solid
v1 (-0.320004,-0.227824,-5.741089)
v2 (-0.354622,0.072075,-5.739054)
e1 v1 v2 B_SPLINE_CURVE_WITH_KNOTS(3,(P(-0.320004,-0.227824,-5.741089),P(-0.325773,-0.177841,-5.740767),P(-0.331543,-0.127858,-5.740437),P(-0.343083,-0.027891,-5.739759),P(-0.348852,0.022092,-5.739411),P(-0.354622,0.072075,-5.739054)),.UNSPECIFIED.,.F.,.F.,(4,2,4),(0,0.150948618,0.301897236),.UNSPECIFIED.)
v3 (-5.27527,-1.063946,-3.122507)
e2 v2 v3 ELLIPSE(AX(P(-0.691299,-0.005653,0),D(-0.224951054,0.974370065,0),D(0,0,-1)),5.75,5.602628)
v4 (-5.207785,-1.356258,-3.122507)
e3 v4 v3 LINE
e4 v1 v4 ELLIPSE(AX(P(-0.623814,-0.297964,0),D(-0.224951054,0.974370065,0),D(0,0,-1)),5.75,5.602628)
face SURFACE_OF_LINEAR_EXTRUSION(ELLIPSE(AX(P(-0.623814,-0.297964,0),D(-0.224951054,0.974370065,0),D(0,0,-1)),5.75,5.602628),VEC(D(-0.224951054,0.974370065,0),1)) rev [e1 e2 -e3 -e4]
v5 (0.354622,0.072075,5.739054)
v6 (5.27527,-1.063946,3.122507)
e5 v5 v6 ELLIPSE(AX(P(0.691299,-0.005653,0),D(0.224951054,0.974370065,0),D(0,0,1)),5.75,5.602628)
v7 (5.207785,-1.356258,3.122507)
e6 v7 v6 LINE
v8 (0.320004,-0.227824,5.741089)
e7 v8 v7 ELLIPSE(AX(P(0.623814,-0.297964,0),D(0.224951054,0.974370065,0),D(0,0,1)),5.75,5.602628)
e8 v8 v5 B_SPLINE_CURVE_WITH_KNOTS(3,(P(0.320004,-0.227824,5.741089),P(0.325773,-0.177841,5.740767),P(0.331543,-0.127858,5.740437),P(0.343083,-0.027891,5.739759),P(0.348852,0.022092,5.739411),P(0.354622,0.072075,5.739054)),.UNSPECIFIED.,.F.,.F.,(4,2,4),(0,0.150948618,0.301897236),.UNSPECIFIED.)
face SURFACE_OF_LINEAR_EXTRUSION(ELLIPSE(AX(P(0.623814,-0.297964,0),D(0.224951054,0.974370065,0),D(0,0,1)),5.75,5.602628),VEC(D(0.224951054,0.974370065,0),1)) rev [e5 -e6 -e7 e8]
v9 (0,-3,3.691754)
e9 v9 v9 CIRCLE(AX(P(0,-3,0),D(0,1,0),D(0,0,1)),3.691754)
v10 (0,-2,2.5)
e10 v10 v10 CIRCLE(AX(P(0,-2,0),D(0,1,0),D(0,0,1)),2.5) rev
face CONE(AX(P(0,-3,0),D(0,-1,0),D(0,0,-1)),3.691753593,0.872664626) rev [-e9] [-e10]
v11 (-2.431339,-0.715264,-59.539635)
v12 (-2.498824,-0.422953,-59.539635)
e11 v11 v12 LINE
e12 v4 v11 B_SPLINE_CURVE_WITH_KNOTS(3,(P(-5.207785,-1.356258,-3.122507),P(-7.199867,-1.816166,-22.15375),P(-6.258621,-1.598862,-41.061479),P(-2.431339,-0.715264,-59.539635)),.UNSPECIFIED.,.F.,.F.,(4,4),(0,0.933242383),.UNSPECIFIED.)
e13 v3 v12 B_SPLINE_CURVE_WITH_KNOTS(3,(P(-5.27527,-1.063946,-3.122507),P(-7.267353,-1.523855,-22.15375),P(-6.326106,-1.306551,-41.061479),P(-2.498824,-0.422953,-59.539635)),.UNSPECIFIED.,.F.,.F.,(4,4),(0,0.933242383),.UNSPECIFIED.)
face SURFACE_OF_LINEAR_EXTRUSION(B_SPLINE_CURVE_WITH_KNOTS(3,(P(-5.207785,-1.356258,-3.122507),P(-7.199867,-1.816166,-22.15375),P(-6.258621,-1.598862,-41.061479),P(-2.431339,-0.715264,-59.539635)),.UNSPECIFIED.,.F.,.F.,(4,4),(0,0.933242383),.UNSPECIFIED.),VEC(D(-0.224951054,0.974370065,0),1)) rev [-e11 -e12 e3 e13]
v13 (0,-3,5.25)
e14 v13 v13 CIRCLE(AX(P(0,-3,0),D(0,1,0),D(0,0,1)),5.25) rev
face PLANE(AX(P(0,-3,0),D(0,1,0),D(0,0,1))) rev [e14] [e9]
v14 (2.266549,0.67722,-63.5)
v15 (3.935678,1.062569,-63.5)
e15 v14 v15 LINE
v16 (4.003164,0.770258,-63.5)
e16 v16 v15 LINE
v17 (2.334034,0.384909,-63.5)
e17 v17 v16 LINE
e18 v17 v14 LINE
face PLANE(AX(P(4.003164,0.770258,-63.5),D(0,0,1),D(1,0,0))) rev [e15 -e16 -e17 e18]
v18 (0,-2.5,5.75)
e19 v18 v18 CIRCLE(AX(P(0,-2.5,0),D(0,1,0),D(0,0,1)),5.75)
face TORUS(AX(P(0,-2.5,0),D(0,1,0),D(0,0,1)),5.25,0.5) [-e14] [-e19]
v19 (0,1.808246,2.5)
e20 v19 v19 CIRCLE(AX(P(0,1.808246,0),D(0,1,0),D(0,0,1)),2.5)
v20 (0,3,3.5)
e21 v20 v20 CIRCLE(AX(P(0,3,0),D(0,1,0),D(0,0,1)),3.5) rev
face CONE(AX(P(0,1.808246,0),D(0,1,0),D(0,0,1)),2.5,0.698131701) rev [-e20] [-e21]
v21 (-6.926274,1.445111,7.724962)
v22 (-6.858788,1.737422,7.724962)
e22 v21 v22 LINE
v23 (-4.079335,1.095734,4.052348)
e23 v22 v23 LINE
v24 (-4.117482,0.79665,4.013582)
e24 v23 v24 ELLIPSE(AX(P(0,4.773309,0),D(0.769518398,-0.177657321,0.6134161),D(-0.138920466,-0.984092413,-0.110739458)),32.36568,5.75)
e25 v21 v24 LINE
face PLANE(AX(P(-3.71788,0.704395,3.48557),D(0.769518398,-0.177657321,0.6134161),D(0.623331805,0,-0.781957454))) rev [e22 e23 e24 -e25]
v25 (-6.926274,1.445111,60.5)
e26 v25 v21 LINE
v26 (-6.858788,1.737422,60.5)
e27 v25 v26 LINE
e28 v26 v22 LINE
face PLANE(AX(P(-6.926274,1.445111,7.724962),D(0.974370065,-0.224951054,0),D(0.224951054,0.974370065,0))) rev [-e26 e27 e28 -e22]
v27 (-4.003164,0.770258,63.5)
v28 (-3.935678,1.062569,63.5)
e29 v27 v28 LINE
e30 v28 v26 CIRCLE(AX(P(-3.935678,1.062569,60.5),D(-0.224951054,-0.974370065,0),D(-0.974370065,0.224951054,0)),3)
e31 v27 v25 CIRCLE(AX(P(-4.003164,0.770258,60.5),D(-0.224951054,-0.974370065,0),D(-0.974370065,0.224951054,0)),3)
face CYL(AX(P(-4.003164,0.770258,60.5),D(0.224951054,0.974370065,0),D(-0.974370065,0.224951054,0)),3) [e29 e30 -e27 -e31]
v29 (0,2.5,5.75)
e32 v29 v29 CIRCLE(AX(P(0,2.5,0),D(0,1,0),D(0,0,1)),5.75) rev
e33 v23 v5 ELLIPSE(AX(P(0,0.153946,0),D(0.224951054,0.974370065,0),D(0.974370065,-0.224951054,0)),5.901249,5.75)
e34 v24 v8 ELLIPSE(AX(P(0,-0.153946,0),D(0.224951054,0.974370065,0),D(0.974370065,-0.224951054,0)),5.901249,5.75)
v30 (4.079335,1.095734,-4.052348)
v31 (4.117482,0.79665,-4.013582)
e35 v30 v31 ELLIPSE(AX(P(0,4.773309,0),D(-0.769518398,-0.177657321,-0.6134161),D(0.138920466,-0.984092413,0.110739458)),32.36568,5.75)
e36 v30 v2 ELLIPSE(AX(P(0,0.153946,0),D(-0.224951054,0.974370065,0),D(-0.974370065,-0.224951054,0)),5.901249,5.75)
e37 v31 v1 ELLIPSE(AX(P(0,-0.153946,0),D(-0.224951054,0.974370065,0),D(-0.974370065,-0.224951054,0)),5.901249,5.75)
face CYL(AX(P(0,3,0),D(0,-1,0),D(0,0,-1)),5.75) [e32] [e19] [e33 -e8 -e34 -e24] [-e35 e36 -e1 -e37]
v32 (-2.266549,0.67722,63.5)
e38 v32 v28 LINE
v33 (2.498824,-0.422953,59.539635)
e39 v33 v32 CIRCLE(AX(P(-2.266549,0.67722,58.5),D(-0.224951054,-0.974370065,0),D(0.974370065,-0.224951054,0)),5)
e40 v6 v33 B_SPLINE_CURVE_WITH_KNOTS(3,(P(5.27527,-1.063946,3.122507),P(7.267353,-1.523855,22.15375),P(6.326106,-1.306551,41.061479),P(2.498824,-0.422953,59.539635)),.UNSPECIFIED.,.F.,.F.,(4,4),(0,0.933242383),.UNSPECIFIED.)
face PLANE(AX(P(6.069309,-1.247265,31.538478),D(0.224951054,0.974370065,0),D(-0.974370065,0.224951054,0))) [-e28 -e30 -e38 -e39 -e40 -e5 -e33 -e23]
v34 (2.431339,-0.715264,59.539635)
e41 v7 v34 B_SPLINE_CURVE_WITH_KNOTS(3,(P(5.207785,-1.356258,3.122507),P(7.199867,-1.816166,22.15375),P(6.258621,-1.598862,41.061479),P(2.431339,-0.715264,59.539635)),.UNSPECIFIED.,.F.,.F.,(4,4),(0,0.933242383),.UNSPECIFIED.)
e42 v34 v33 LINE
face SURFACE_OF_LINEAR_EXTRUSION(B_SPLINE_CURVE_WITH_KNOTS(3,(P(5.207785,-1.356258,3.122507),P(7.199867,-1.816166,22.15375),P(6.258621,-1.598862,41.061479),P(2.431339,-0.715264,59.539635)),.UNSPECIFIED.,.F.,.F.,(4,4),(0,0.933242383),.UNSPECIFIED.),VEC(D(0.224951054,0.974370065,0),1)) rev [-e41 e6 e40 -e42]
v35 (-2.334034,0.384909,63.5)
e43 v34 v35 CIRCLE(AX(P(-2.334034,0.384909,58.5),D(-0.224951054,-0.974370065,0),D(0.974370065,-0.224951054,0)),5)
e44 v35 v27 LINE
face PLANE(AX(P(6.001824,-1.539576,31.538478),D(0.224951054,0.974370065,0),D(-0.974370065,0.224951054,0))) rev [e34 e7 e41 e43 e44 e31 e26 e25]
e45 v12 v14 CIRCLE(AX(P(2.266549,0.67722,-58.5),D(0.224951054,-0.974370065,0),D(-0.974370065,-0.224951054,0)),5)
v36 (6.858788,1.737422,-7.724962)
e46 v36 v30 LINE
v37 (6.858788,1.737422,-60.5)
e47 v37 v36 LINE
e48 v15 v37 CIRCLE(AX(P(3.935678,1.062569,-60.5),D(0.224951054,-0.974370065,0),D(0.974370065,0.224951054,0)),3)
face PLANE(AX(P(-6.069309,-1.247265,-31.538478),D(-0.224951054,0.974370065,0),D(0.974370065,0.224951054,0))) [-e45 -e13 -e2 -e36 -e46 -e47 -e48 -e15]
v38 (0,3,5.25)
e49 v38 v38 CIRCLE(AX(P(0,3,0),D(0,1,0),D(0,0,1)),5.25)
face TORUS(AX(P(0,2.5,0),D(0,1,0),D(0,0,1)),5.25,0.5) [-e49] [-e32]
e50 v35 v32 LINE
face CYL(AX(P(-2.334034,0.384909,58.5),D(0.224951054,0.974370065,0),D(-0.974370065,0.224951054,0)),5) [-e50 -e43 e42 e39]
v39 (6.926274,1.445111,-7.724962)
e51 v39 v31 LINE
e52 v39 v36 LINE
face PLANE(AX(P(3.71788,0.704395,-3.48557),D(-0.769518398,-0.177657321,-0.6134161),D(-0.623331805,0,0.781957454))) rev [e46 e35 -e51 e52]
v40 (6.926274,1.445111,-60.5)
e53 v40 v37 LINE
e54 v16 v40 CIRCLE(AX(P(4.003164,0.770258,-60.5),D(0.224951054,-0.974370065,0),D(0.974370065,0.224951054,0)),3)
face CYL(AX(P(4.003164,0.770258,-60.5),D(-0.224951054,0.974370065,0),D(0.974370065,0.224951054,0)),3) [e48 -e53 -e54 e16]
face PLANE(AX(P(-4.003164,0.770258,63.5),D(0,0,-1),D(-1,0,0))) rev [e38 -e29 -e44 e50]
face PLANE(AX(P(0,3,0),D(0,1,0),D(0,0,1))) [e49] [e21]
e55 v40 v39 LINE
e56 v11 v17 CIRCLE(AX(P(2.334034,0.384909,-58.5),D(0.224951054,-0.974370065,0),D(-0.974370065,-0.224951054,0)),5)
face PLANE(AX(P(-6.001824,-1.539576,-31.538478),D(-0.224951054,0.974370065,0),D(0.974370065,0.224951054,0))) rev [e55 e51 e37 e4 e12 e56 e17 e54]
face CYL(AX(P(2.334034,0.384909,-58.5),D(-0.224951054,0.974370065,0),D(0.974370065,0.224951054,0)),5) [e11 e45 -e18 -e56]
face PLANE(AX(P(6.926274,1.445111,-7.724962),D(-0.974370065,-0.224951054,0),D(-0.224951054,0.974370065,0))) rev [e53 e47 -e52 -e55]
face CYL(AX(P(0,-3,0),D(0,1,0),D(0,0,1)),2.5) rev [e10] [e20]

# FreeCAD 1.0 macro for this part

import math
import FreeCAD as App
import Part
import Sketcher

V = App.Vector


def edges_at(feature, points):
    """Names of the edges that pass closest to the given points."""
    edges = feature.Shape.Edges
    near = lambda p: min(range(len(edges)), key=lambda i: edges[i].distToShape(Part.Vertex(*p))[0])
    return sorted({f"Edge{near(p) + 1}" for p in points})

doc = App.newDocument("Part")
params = doc.addObject("Spreadsheet::Sheet", "Params")
for row, (alias, value) in enumerate([
    ("sketch1_diameter", "11.5 mm"),
    ("pad1_length", "6 mm"),
    ("sketch2_radius", "5 mm"),
    ("sketch2_radius2", "3 mm"),
    ("pad2_length", "0.3 mm"),
    ("sketch3_diameter", "5 mm"),
    ("fillet_radius", "0.5 mm"),
    ("chamfer_size", "1 mm"),
    ("chamfer_size2", "1.191754 mm"),
    ("chamfer2_size", "1 mm"),
    ("chamfer2_size2", "1.191754 mm"),
], start=1):
    params.set(f"A{row}", alias)
    params.set(f"B{row}", "=" + value)
    params.setAlias(f"B{row}", alias)

body = doc.addObject("PartDesign::Body", "Body")

# Sketch on XZ plane
sketch1 = body.newObject("Sketcher::SketchObject", "Sketch")
sketch1.AttachmentSupport = (doc.getObject("XZ_Plane"), [""])
sketch1.MapMode = "FlatFace"
sketch1.addGeometry(Part.Circle(V(0, 0, 0), V(0, 0, 1), 6), False)
sketch1.addConstraint([
    Sketcher.Constraint("Coincident", 0, 3, -1, 1),
    Sketcher.Constraint("Diameter", 0, 11.5),
])
sketch1.setExpression("Constraints[1]", "Params.sketch1_diameter")
pad1 = body.newObject("PartDesign::Pad", "Pad")
pad1.Profile = sketch1
pad1.setExpression("Length", "Params.pad1_length")
pad1.Midplane = True

# Sketch on an angled plane
sketch2 = body.newObject("Sketcher::SketchObject", "Sketch001")
sketch2.Placement = App.Placement(V(0, 0, 0), App.Rotation(V(0.974370065, -0.224951054, 0), V(0, 0, 1), V(-0.224951054, -0.974370065, 0), "ZXY"))
sketch2.addGeometry([
    Part.LineSegment(V(-7.073833, 7.724962, 0), V(-3.781045, 3.48557, 0)),  # 0
    Part.BSplineCurve([V(5.379401, 3.122507, 0), V(1.050826, 9.991793, 0), V(-3.781045, 3.48557, 0)], [3, 3], [5.286447688, 7.20272538], False, 2, [1, 0.575043633, 1], False),  # 1
    Part.BSplineCurve([V(5.379401, 3.122507, 0), V(7.423884, 22.15375, 0), V(6.457879, 41.061479, 0), V(2.529923, 59.539635, 0)], [4, 4], [0, 0.933242383], False, 3, [1, 1, 1, 1], False),  # 2
    Part.ArcOfCircle(Part.Circle(V(-2.360799, 58.5, 0), V(0, 0, 1), 5), math.radians(12.000897), math.radians(90)),  # 3
    Part.LineSegment(V(-2.360799, 63.5, 0), V(-4.073833, 63.5, 0)),  # 4
    Part.ArcOfCircle(Part.Circle(V(-4.073833, 60.5, 0), V(0, 0, 1), 3), math.radians(90), math.radians(180)),  # 5
    Part.LineSegment(V(-7.073833, 60.5, 0), V(-7.073833, 7.724962, 0)),  # 6
], False)
sketch2.addConstraint([
    Sketcher.Constraint("Block", 1),
    Sketcher.Constraint("Block", 2),
    Sketcher.Constraint("Coincident", 0, 2, 1, 2),
    Sketcher.Constraint("Coincident", 2, 2, 3, 1),
    Sketcher.Constraint("Tangent", 3, 2, 4, 1),
    Sketcher.Constraint("Tangent", 4, 2, 5, 1),
    Sketcher.Constraint("Tangent", 5, 2, 6, 1),
    Sketcher.Constraint("Coincident", 6, 2, 0, 1),
    Sketcher.Constraint("Horizontal", 4),
    Sketcher.Constraint("Vertical", 6),
    Sketcher.Constraint("Radius", 3, 5.0),
    Sketcher.Constraint("Radius", 5, 3.0),
    Sketcher.Constraint("DistanceY", -1, 1, 3, 3, 58.5),
    Sketcher.Constraint("Distance", 0, 5.367951),
    Sketcher.Constraint("DistanceX", 4, 2, 4, 1, 1.713034),
])
sketch2.setExpression("Constraints[10]", "Params.sketch2_radius")
sketch2.setExpression("Constraints[11]", "Params.sketch2_radius2")
pad2 = body.newObject("PartDesign::Pad", "Pad001")
pad2.Profile = sketch2
pad2.setExpression("Length", "Params.pad2_length")
pad2.Midplane = True
doc.recompute()

polarpattern = body.newObject("PartDesign::PolarPattern", "PolarPattern")
polarpattern.Originals = [pad2]
polarpattern.Axis = (doc.getObject("Y_Axis"), [""])
polarpattern.Angle = 360
polarpattern.Occurrences = 2
body.Tip = polarpattern

# Sketch on XZ plane
sketch3 = body.newObject("Sketcher::SketchObject", "Sketch002")
sketch3.AttachmentSupport = (doc.getObject("XZ_Plane"), [""])
sketch3.MapMode = "FlatFace"
sketch3.AttachmentOffset = App.Placement(V(0, 0, -3), App.Rotation())
sketch3.addGeometry(Part.Circle(V(0, 0, 0), V(0, 0, 1), 2.5), False)
sketch3.addConstraint([
    Sketcher.Constraint("Coincident", 0, 3, -1, 1),
    Sketcher.Constraint("Diameter", 0, 5.0),
])
sketch3.setExpression("Constraints[1]", "Params.sketch3_diameter")
pocket1 = body.newObject("PartDesign::Pocket", "Pocket")
pocket1.Profile = sketch3
pocket1.Type = "ThroughAll"
pocket1.Reversed = True
doc.recompute()

fillet = body.newObject("PartDesign::Fillet", "Fillet")
fillet.Base = (pocket1, edges_at(pocket1, [(-5.75, -3, 0), (-5.75, 3, 0)]))
fillet.setExpression("Radius", "Params.fillet_radius")
doc.recompute()

chamfer = body.newObject("PartDesign::Chamfer", "Chamfer")
chamfer.Base = (fillet, edges_at(fillet, [(-2.5, -3, 0)]))
chamfer.ChamferType = "Two distances"
chamfer.setExpression("Size", "Params.chamfer_size")
chamfer.setExpression("Size2", "Params.chamfer_size2")
chamfer.FlipDirection = True
doc.recompute()

chamfer2 = body.newObject("PartDesign::Chamfer", "Chamfer001")
chamfer2.Base = (chamfer, edges_at(chamfer, [(-2.5, 3, 0)]))
chamfer2.ChamferType = "Two distances"
chamfer2.setExpression("Size", "Params.chamfer2_size")
chamfer2.setExpression("Size2", "Params.chamfer2_size2")
chamfer2.FlipDirection = True

doc.recompute()
